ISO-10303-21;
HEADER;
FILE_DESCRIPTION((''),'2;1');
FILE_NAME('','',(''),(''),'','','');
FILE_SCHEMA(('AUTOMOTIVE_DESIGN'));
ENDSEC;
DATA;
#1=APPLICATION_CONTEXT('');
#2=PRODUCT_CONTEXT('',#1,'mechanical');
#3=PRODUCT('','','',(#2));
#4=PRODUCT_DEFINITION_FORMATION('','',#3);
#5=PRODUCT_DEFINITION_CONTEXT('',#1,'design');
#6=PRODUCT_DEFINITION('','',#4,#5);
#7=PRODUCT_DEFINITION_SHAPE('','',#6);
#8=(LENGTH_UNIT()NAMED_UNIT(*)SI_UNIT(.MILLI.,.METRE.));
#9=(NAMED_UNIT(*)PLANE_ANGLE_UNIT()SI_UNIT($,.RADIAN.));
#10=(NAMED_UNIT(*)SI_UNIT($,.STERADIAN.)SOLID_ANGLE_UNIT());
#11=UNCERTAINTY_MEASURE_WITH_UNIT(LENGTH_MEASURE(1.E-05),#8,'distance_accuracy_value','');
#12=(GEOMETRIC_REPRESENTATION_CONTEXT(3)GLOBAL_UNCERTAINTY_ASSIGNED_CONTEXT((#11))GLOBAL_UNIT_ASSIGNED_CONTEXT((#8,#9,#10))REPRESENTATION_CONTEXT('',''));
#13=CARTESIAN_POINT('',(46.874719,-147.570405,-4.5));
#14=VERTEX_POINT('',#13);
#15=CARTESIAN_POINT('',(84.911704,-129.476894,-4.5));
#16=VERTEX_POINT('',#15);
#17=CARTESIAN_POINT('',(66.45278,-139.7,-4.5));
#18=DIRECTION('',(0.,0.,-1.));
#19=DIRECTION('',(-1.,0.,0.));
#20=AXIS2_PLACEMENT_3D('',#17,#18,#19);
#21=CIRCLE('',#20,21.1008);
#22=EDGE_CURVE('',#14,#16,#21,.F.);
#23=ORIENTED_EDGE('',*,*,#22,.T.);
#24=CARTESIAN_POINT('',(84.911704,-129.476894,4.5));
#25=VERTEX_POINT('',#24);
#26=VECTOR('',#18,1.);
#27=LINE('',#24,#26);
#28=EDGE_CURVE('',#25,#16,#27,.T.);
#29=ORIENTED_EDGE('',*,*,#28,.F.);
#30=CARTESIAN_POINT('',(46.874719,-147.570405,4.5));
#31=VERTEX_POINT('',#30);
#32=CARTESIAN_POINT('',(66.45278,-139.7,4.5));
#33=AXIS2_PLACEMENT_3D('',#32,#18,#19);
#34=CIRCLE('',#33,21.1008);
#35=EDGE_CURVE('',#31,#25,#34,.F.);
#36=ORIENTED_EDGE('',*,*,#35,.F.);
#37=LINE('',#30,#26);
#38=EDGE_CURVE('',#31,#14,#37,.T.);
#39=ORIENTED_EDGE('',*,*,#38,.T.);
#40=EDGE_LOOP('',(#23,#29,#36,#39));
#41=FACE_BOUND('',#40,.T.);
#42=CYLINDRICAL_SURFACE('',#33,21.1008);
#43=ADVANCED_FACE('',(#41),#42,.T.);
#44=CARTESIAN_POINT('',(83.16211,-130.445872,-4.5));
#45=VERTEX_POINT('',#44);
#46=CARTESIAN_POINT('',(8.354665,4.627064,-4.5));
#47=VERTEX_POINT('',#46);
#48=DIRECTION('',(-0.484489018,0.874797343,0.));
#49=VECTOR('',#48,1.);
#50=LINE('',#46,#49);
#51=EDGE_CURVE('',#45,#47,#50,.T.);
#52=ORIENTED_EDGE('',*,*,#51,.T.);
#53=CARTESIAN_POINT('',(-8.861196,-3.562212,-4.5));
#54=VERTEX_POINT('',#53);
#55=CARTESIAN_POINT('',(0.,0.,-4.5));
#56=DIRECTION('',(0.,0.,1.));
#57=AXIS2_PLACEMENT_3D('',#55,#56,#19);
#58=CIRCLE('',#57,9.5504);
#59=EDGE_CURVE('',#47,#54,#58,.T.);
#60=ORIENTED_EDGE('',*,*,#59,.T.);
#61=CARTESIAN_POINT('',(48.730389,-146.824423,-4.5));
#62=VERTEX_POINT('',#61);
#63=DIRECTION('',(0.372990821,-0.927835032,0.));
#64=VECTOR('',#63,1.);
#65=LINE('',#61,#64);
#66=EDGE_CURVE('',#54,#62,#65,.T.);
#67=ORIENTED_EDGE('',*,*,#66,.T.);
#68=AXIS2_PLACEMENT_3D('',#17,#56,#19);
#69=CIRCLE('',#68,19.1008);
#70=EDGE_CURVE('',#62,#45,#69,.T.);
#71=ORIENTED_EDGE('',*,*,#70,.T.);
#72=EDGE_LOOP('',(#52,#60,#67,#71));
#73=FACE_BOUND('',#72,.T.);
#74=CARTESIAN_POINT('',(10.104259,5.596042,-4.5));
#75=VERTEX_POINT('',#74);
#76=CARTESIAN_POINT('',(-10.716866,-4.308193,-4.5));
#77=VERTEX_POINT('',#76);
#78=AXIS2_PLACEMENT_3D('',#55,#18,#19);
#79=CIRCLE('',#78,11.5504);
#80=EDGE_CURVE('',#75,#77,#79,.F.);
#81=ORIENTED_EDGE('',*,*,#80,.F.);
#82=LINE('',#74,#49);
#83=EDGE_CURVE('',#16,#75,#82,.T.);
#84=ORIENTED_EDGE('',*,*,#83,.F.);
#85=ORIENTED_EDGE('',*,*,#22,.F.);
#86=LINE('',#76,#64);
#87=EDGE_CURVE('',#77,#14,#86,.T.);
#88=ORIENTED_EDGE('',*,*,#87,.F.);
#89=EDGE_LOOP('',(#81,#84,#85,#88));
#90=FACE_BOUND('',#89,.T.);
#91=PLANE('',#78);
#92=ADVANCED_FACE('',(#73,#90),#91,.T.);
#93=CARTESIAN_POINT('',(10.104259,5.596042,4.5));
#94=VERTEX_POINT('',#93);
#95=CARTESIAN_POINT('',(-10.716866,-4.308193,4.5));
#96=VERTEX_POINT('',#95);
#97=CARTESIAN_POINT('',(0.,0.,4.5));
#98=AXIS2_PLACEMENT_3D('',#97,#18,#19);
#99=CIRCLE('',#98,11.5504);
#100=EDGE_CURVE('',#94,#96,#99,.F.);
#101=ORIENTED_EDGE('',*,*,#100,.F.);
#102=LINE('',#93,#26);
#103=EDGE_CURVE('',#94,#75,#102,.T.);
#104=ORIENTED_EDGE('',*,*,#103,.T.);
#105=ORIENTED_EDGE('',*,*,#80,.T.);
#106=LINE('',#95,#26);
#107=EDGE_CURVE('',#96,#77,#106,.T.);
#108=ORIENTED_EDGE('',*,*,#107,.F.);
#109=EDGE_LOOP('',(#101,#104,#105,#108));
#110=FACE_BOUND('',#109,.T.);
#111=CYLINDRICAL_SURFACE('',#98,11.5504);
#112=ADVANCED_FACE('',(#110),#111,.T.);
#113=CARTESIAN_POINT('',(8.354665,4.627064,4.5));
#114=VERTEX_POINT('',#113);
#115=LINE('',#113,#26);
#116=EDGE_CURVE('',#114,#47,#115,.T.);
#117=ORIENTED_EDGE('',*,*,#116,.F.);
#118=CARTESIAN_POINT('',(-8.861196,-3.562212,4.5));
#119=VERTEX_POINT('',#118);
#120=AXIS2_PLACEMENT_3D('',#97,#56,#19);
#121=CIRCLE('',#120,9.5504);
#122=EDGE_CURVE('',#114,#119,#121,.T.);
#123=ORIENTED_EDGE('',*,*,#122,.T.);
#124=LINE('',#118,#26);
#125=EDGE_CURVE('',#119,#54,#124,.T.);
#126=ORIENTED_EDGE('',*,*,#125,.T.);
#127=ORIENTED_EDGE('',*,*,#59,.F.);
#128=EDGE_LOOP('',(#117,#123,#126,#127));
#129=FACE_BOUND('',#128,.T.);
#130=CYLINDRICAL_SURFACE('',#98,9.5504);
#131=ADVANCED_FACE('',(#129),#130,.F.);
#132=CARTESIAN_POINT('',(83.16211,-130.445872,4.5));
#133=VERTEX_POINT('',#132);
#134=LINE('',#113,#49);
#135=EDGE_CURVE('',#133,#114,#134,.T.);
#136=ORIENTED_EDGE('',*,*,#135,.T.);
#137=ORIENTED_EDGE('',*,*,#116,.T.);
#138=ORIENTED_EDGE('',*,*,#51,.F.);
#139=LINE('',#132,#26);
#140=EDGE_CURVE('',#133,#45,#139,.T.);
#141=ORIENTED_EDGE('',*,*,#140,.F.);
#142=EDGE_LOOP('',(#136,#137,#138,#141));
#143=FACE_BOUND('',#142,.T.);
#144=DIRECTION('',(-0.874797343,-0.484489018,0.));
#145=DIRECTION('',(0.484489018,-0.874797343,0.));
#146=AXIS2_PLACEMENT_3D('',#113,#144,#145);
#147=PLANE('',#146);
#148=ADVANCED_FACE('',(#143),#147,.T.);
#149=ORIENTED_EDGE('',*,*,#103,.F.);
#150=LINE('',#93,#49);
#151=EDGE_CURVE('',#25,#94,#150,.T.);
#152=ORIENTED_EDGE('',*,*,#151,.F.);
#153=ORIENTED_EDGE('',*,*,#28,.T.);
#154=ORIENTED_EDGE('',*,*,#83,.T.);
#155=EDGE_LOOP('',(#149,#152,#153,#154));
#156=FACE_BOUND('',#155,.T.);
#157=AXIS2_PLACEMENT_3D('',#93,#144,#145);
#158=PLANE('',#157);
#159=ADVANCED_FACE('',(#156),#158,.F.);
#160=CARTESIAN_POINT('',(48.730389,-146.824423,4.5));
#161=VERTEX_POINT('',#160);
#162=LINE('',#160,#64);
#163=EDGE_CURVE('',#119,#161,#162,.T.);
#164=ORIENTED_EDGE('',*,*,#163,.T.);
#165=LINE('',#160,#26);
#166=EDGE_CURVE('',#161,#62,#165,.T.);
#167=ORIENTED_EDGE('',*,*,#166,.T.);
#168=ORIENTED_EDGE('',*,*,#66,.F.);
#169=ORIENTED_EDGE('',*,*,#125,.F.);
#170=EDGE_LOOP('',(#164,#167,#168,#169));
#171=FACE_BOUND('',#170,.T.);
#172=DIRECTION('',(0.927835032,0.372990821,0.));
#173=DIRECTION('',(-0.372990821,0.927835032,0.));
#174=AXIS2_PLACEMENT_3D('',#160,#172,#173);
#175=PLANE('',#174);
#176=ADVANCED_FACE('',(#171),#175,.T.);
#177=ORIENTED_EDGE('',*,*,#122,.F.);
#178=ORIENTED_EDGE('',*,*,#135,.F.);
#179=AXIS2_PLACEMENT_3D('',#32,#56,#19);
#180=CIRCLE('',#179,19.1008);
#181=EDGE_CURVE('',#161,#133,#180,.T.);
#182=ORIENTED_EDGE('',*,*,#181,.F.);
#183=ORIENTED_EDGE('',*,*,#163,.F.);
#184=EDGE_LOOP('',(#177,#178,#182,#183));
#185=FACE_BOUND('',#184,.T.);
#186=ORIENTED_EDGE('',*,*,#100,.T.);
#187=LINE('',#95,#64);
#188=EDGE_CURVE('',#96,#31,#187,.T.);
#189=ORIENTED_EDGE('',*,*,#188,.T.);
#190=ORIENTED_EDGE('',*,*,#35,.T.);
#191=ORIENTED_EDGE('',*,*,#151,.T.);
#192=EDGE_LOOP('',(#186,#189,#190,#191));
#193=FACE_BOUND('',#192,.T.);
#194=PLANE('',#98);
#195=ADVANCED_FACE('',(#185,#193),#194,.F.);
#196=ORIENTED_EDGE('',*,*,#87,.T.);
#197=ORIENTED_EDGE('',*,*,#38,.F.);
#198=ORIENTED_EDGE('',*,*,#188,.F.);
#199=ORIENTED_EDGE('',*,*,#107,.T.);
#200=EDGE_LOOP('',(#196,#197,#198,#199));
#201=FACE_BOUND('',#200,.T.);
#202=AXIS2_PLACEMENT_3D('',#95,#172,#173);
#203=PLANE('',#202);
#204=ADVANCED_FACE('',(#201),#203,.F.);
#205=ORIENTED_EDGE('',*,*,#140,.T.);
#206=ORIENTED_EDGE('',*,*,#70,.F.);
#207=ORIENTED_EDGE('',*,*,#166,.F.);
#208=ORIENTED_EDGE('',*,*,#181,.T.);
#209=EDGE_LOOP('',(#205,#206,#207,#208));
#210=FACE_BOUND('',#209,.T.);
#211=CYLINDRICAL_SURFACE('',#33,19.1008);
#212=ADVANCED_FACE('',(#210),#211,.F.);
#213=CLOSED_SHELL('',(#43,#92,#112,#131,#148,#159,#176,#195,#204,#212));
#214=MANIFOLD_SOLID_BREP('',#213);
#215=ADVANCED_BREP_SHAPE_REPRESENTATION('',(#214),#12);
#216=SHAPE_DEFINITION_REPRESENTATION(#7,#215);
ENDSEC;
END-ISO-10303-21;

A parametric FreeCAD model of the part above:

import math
import FreeCAD as App
import Part
import Sketcher
from FreeCAD import Vector
Q = App.Units.Quantity

doc = App.newDocument("Part")
params = doc.addObject("Spreadsheet::Sheet", "Params")
for row, (alias, value) in enumerate([
    ("sketch1_radius", "0.376 in"),
    ("sketch1_radius2", "0.752 in"),
    ("pad1_length", "9 mm"),
], start=1):
    params.set(f"A{row}", alias)
    params.set(f"B{row}", "=" + value)
    params.setAlias(f"B{row}", alias)

body = doc.addObject("PartDesign::Body", "Body")

# Sketch on XY plane
sketch1 = body.newObject("Sketcher::SketchObject", "Sketch")
sketch1.AttachmentSupport = (doc.getObject("XY_Plane"), [""])
sketch1.MapMode = "FlatFace"
sketch1.addGeometry([
    Part.LineSegment(Vector(-11, -4, 0), Vector(47, -148, 0)),  # 0
    Part.ArcOfCircle(Part.Circle(Vector(66, -140, 0), Vector(0, 0, 1), 21), math.radians(-158), math.radians(29)),  # 1
    Part.LineSegment(Vector(85, -129, 0), Vector(10, 6, 0)),  # 2
    Part.ArcOfCircle(Part.Circle(Vector(0, 0, 0), Vector(0, 0, 1), 12), math.radians(29), math.radians(202)),  # 3
    Part.LineSegment(Vector(49, -147, 0), Vector(-9, -4, 0)),  # 4
    Part.ArcOfCircle(Part.Circle(Vector(0, 0, 0), Vector(0, 0, 1), 10), math.radians(29), math.radians(202)),  # 5
    Part.LineSegment(Vector(8, 5, 0), Vector(83, -130, 0)),  # 6
    Part.ArcOfCircle(Part.Circle(Vector(66, -140, 0), Vector(0, 0, 1), 19), math.radians(-158), math.radians(29)),  # 7
], False)
sketch1.addConstraint([
    Sketcher.Constraint("Tangent", 0, 2, 1, 1),
    Sketcher.Constraint("Tangent", 1, 2, 2, 1),
    Sketcher.Constraint("Tangent", 2, 2, 3, 1),
    Sketcher.Constraint("Tangent", 3, 2, 0, 1),
    Sketcher.Constraint("Tangent", 4, 2, 5, 2),
    Sketcher.Constraint("Tangent", 5, 1, 6, 1),
    Sketcher.Constraint("Tangent", 6, 2, 7, 2),
    Sketcher.Constraint("Tangent", 7, 1, 4, 1),
    Sketcher.Constraint("Coincident", 3, 3, -1, 1),
    Sketcher.Constraint("Coincident", 5, 3, -1, 1),
    Sketcher.Constraint("Coincident", 7, 3, 1, 3),
    Sketcher.Constraint("Parallel", 0, 4),
    Sketcher.Constraint("Radius", 5, Q("0.376 in")),
    Sketcher.Constraint("Radius", 7, Q("0.752 in")),
    Sketcher.Constraint("DistanceY", 1, 3, -1, 1, Q("5.5 in")),
    Sketcher.Constraint("Radius", 1, Q("21.1008 mm")),
    Sketcher.Constraint("Distance", 0, Q("154.404831 mm")),
])
sketch1.setExpression("Constraints[12]", "Params.sketch1_radius")
sketch1.setExpression("Constraints[13]", "Params.sketch1_radius2")
pad1 = body.newObject("PartDesign::Pad", "Pad")
pad1.Profile = sketch1
pad1.setExpression("Length", "Params.pad1_length")
pad1.Midplane = True

doc.recompute()
